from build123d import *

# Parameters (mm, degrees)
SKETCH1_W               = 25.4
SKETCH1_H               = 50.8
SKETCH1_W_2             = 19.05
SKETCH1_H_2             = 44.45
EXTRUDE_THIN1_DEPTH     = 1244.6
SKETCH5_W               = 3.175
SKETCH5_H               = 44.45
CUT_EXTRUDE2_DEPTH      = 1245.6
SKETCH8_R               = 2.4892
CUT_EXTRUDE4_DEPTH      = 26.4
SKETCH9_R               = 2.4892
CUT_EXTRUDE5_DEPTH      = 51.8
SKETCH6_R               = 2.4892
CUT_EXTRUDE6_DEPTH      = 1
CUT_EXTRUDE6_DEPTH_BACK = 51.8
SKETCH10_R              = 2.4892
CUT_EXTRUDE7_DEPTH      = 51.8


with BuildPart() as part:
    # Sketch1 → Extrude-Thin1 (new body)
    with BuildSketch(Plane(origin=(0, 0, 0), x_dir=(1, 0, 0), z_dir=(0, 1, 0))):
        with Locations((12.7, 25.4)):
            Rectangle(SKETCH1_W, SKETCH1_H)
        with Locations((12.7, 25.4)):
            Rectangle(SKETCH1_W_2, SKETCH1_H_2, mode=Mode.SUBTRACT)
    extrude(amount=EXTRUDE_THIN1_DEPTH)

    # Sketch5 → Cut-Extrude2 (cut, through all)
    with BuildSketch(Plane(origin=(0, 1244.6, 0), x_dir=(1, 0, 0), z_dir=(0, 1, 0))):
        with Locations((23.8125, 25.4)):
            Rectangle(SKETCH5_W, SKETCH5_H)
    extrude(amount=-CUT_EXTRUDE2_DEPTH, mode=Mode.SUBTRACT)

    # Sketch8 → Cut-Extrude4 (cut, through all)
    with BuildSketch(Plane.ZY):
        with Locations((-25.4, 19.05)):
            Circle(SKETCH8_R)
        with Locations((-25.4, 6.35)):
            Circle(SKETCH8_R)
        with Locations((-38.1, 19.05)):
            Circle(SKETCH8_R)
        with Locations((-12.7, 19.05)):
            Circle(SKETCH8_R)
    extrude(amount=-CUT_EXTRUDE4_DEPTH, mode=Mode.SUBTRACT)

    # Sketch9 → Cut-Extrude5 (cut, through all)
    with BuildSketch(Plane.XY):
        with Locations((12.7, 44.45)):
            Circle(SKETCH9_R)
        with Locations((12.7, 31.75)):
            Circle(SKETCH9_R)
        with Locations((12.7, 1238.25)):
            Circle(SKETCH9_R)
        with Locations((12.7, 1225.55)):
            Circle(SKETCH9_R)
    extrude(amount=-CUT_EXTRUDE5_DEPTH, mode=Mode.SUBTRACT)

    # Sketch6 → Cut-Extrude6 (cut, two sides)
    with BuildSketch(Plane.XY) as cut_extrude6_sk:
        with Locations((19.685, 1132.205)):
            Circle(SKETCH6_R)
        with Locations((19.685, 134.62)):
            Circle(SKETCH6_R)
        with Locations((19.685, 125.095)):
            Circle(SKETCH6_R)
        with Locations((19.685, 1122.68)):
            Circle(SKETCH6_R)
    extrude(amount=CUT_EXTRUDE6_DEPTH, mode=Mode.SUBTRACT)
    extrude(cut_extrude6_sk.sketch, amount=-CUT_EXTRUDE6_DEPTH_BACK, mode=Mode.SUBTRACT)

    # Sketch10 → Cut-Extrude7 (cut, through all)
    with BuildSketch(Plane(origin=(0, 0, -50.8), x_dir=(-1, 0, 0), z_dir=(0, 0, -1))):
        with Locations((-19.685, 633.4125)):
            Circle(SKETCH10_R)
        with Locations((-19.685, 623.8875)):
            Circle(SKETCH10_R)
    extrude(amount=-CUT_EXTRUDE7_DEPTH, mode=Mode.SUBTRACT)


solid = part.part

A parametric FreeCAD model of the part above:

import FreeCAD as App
import Part
import Sketcher
from FreeCAD import Vector
Q = App.Units.Quantity

doc = App.newDocument("Part")
params = doc.addObject("Spreadsheet::Sheet", "Params")
for row, (alias, value) in enumerate([
    ("sketch1_width", "1 in"),
    ("sketch1_height", "2 in"),
    ("sketch1_width2", "0.75 in"),
    ("sketch1_height2", "1.75 in"),
    ("pad1_length", "49 in"),
    ("sketch2_height", "1.75 in"),
    ("sketch2_width", "0.125 in"),
    ("sketch3_diameter", "0.196 in"),
    ("sketch4_diameter", "0.196 in"),
    ("sketch5_diameter", "0.196 in"),
    ("sketch6_diameter", "0.196 in"),
], start=1):
    params.set(f"A{row}", alias)
    params.set(f"B{row}", "=" + value)
    params.setAlias(f"B{row}", alias)

body = doc.addObject("PartDesign::Body", "Body")

# Sketch on XZ plane
sketch1 = body.newObject("Sketcher::SketchObject", "Sketch")
sketch1.AttachmentSupport = (doc.getObject("XZ_Plane"), [""])
sketch1.MapMode = "FlatFace"
sketch1.addGeometry([
    Part.LineSegment(Vector(0, -50.8, 0), Vector(0, 0, 0)),  # 0
    Part.LineSegment(Vector(0, 0, 0), Vector(25.4, 0, 0)),  # 1
    Part.LineSegment(Vector(25.4, 0, 0), Vector(25.4, -50.8, 0)),  # 2
    Part.LineSegment(Vector(25.4, -50.8, 0), Vector(0, -50.8, 0)),  # 3
    Part.LineSegment(Vector(22.225, -3.175, 0), Vector(3.175, -3.175, 0)),  # 4
    Part.LineSegment(Vector(3.175, -3.175, 0), Vector(3.175, -47.625, 0)),  # 5
    Part.LineSegment(Vector(3.175, -47.625, 0), Vector(22.225, -47.625, 0)),  # 6
    Part.LineSegment(Vector(22.225, -47.625, 0), Vector(22.225, -3.175, 0)),  # 7
], False)
sketch1.addConstraint([
    Sketcher.Constraint("Coincident", 0, 2, 1, 1),
    Sketcher.Constraint("Coincident", 1, 2, 2, 1),
    Sketcher.Constraint("Coincident", 2, 2, 3, 1),
    Sketcher.Constraint("Coincident", 3, 2, 0, 1),
    Sketcher.Constraint("Coincident", 4, 2, 5, 1),
    Sketcher.Constraint("Coincident", 5, 2, 6, 1),
    Sketcher.Constraint("Coincident", 6, 2, 7, 1),
    Sketcher.Constraint("Coincident", 7, 2, 4, 1),
    Sketcher.Constraint("Vertical", 0),
    Sketcher.Constraint("Horizontal", 1),
    Sketcher.Constraint("Vertical", 2),
    Sketcher.Constraint("Horizontal", 3),
    Sketcher.Constraint("Horizontal", 4),
    Sketcher.Constraint("Vertical", 5),
    Sketcher.Constraint("Horizontal", 6),
    Sketcher.Constraint("Vertical", 7),
    Sketcher.Constraint("Coincident", 0, 2, -1, 1),
    Sketcher.Constraint("DistanceX", 1, 1, 1, 2, Q("1 in")),
    Sketcher.Constraint("DistanceY", 0, 1, 0, 2, Q("2 in")),
    Sketcher.Constraint("DistanceX", 4, 2, 4, 1, Q("0.75 in")),
    Sketcher.Constraint("DistanceY", 5, 2, 5, 1, Q("1.75 in")),
    Sketcher.Constraint("DistanceX", -1, 1, 4, 2, Q("0.125 in")),
    Sketcher.Constraint("DistanceY", 4, 2, -1, 1, Q("0.125 in")),
])
sketch1.setExpression("Constraints[17]", "Params.sketch1_width")
sketch1.setExpression("Constraints[18]", "Params.sketch1_height")
sketch1.setExpression("Constraints[19]", "Params.sketch1_width2")
sketch1.setExpression("Constraints[20]", "Params.sketch1_height2")
pad1 = body.newObject("PartDesign::Pad", "Pad")
pad1.Profile = sketch1
pad1.setExpression("Length", "Params.pad1_length")
pad1.Reversed = True

# Sketch on XZ plane
sketch2 = body.newObject("Sketcher::SketchObject", "Sketch001")
sketch2.AttachmentSupport = (doc.getObject("XZ_Plane"), [""])
sketch2.MapMode = "FlatFace"
sketch2.AttachmentOffset = App.Placement(Vector(0, 0, -49 * 25.4), App.Rotation())
sketch2.addGeometry([
    Part.LineSegment(Vector(22.225, -47.625, 0), Vector(22.225, -3.175, 0)),
    Part.LineSegment(Vector(22.225, -3.175, 0), Vector(25.4, -3.175, 0)),
    Part.LineSegment(Vector(25.4, -3.175, 0), Vector(25.4, -47.625, 0)),
    Part.LineSegment(Vector(25.4, -47.625, 0), Vector(22.225, -47.625, 0)),
], False)
sketch2.addConstraint([
    Sketcher.Constraint("Coincident", 0, 2, 1, 1),
    Sketcher.Constraint("Coincident", 1, 2, 2, 1),
    Sketcher.Constraint("Coincident", 2, 2, 3, 1),
    Sketcher.Constraint("Coincident", 3, 2, 0, 1),
    Sketcher.Constraint("Vertical", 0),
    Sketcher.Constraint("Horizontal", 1),
    Sketcher.Constraint("Vertical", 2),
    Sketcher.Constraint("Horizontal", 3),
    Sketcher.Constraint("DistanceX", -1, 1, 1, 2, Q("1 in")),
    Sketcher.Constraint("DistanceY", 0, 1, 0, 2, Q("1.75 in")),
    Sketcher.Constraint("DistanceX", 1, 1, 1, 2, Q("0.125 in")),
    Sketcher.Constraint("DistanceY", 0, 2, -1, 1, Q("0.125 in")),
])
sketch2.setExpression("Constraints[9]", "Params.sketch2_height")
sketch2.setExpression("Constraints[10]", "Params.sketch2_width")
pocket1 = body.newObject("PartDesign::Pocket", "Pocket")
pocket1.Profile = sketch2
pocket1.Type = "ThroughAll"
pocket1.Reversed = True

# Sketch on YZ plane
sketch3 = body.newObject("Sketcher::SketchObject", "Sketch002")
sketch3.AttachmentSupport = (doc.getObject("YZ_Plane"), [""])
sketch3.MapMode = "FlatFace"
sketch3.addGeometry([
    Part.Circle(Vector(19.05, -25.4, 0), Vector(0, 0, 1), 2.4892),
    Part.Circle(Vector(6.35, -25.4, 0), Vector(0, 0, 1), 2.4892),
    Part.Circle(Vector(19.05, -38.1, 0), Vector(0, 0, 1), 2.4892),
    Part.Circle(Vector(19.05, -12.7, 0), Vector(0, 0, 1), 2.4892),
], False)
sketch3.addConstraint([
    Sketcher.Constraint("Equal", 0, 1),
    Sketcher.Constraint("Equal", 1, 2),
    Sketcher.Constraint("Equal", 2, 3),
    Sketcher.Constraint("Horizontal", 0, 3, 1, 3),
    Sketcher.Constraint("Vertical", 0, 3, 2, 3),
    Sketcher.Constraint("Vertical", 2, 3, 3, 3),
    Sketcher.Constraint("Diameter", 0, Q("0.196 in")),
    Sketcher.Constraint("DistanceY", 0, 3, -1, 1, Q("1 in")),
    Sketcher.Constraint("DistanceY", 2, 3, 3, 3, Q("1 in")),
    Sketcher.Constraint("DistanceY", 2, 3, -1, 1, Q("1.5 in")),
    Sketcher.Constraint("DistanceX", 1, 3, 0, 3, Q("0.5 in")),
    Sketcher.Constraint("DistanceX", -1, 1, 0, 3, Q("0.75 in")),
])
sketch3.setExpression("Constraints[6]", "Params.sketch3_diameter")
pocket2 = body.newObject("PartDesign::Pocket", "Pocket001")
pocket2.Profile = sketch3
pocket2.Type = "ThroughAll"
pocket2.Reversed = True

# Sketch on XY plane
sketch4 = body.newObject("Sketcher::SketchObject", "Sketch003")
sketch4.AttachmentSupport = (doc.getObject("XY_Plane"), [""])
sketch4.MapMode = "FlatFace"
sketch4.addGeometry([
    Part.Circle(Vector(12.7, 44.45, 0), Vector(0, 0, 1), 2.4892),
    Part.Circle(Vector(12.7, 31.75, 0), Vector(0, 0, 1), 2.4892),
    Part.Circle(Vector(12.7, 1238.25, 0), Vector(0, 0, 1), 2.4892),
    Part.Circle(Vector(12.7, 1225.55, 0), Vector(0, 0, 1), 2.4892),
], False)
sketch4.addConstraint([
    Sketcher.Constraint("Equal", 0, 1),
    Sketcher.Constraint("Equal", 1, 2),
    Sketcher.Constraint("Equal", 2, 3),
    Sketcher.Constraint("Vertical", 0, 3, 1, 3),
    Sketcher.Constraint("Vertical", 1, 3, 2, 3),
    Sketcher.Constraint("Vertical", 2, 3, 3, 3),
    Sketcher.Constraint("Diameter", 0, Q("0.196 in")),
    Sketcher.Constraint("DistanceY", 0, 3, 2, 3, Q("47 in")),
    Sketcher.Constraint("DistanceY", 1, 3, 3, 3, Q("47 in")),
    Sketcher.Constraint("DistanceX", -1, 1, 0, 3, Q("0.5 in")),
    Sketcher.Constraint("DistanceY", 1, 3, 0, 3, Q("0.5 in")),
    Sketcher.Constraint("DistanceY", -1, 1, 0, 3, Q("1.75 in")),
])
sketch4.setExpression("Constraints[6]", "Params.sketch4_diameter")
pocket3 = body.newObject("PartDesign::Pocket", "Pocket002")
pocket3.Profile = sketch4
pocket3.Type = "ThroughAll"

# Sketch on XY plane
sketch5 = body.newObject("Sketcher::SketchObject", "Sketch004")
sketch5.AttachmentSupport = (doc.getObject("XY_Plane"), [""])
sketch5.MapMode = "FlatFace"
sketch5.addGeometry([
    Part.Circle(Vector(19.685, 1132.205, 0), Vector(0, 0, 1), 2.4892),
    Part.Circle(Vector(19.685, 134.62, 0), Vector(0, 0, 1), 2.4892),
    Part.Circle(Vector(19.685, 125.095, 0), Vector(0, 0, 1), 2.4892),
    Part.Circle(Vector(19.685, 1122.68, 0), Vector(0, 0, 1), 2.4892),
], False)
sketch5.addConstraint([
    Sketcher.Constraint("Equal", 0, 1),
    Sketcher.Constraint("Equal", 1, 2),
    Sketcher.Constraint("Equal", 2, 3),
    Sketcher.Constraint("Vertical", 0, 3, 1, 3),
    Sketcher.Constraint("Vertical", 1, 3, 2, 3),
    Sketcher.Constraint("Vertical", 2, 3, 3, 3),
    Sketcher.Constraint("Diameter", 0, Q("0.196 in")),
    Sketcher.Constraint("DistanceY", -1, 1, 1, 3, Q("5.3 in")),
    Sketcher.Constraint("DistanceY", -1, 1, 3, 3, Q("44.2 in")),
    Sketcher.Constraint("DistanceY", 2, 3, 0, 3, Q("39.65 in")),
    Sketcher.Constraint("DistanceX", -1, 1, 0, 3, Q("0.775 in")),
    Sketcher.Constraint("DistanceY", -1, 1, 0, 3, Q("44.575 in")),
])
sketch5.setExpression("Constraints[6]", "Params.sketch5_diameter")
pocket4 = body.newObject("PartDesign::Pocket", "Pocket003")
pocket4.Profile = sketch5
pocket4.Type = "ThroughAll"
pocket4.Midplane = True

# Sketch on XY plane
sketch6 = body.newObject("Sketcher::SketchObject", "Sketch005")
sketch6.AttachmentSupport = (doc.getObject("XY_Plane"), [""])
sketch6.MapMode = "FlatFace"
sketch6.AttachmentOffset = App.Placement(Vector(0, 0, -2 * 25.4), App.Rotation())
sketch6.addGeometry([
    Part.Circle(Vector(19.685, 633.4125, 0), Vector(0, 0, 1), 2.4892),
    Part.Circle(Vector(19.685, 623.8875, 0), Vector(0, 0, 1), 2.4892),
], False)
sketch6.addConstraint([
    Sketcher.Constraint("Equal", 0, 1),
    Sketcher.Constraint("Vertical", 0, 3, 1, 3),
    Sketcher.Constraint("Diameter", 0, Q("0.196 in")),
    Sketcher.Constraint("DistanceX", -1, 1, 0, 3, Q("0.775 in")),
    Sketcher.Constraint("DistanceY", -1, 1, 0, 3, Q("24.9375 in")),
    Sketcher.Constraint("DistanceY", -1, 1, 1, 3, Q("24.5625 in")),
])
sketch6.setExpression("Constraints[2]", "Params.sketch6_diameter")
pocket5 = body.newObject("PartDesign::Pocket", "Pocket004")
pocket5.Profile = sketch6
pocket5.Type = "ThroughAll"
pocket5.Reversed = True

doc.recompute()
